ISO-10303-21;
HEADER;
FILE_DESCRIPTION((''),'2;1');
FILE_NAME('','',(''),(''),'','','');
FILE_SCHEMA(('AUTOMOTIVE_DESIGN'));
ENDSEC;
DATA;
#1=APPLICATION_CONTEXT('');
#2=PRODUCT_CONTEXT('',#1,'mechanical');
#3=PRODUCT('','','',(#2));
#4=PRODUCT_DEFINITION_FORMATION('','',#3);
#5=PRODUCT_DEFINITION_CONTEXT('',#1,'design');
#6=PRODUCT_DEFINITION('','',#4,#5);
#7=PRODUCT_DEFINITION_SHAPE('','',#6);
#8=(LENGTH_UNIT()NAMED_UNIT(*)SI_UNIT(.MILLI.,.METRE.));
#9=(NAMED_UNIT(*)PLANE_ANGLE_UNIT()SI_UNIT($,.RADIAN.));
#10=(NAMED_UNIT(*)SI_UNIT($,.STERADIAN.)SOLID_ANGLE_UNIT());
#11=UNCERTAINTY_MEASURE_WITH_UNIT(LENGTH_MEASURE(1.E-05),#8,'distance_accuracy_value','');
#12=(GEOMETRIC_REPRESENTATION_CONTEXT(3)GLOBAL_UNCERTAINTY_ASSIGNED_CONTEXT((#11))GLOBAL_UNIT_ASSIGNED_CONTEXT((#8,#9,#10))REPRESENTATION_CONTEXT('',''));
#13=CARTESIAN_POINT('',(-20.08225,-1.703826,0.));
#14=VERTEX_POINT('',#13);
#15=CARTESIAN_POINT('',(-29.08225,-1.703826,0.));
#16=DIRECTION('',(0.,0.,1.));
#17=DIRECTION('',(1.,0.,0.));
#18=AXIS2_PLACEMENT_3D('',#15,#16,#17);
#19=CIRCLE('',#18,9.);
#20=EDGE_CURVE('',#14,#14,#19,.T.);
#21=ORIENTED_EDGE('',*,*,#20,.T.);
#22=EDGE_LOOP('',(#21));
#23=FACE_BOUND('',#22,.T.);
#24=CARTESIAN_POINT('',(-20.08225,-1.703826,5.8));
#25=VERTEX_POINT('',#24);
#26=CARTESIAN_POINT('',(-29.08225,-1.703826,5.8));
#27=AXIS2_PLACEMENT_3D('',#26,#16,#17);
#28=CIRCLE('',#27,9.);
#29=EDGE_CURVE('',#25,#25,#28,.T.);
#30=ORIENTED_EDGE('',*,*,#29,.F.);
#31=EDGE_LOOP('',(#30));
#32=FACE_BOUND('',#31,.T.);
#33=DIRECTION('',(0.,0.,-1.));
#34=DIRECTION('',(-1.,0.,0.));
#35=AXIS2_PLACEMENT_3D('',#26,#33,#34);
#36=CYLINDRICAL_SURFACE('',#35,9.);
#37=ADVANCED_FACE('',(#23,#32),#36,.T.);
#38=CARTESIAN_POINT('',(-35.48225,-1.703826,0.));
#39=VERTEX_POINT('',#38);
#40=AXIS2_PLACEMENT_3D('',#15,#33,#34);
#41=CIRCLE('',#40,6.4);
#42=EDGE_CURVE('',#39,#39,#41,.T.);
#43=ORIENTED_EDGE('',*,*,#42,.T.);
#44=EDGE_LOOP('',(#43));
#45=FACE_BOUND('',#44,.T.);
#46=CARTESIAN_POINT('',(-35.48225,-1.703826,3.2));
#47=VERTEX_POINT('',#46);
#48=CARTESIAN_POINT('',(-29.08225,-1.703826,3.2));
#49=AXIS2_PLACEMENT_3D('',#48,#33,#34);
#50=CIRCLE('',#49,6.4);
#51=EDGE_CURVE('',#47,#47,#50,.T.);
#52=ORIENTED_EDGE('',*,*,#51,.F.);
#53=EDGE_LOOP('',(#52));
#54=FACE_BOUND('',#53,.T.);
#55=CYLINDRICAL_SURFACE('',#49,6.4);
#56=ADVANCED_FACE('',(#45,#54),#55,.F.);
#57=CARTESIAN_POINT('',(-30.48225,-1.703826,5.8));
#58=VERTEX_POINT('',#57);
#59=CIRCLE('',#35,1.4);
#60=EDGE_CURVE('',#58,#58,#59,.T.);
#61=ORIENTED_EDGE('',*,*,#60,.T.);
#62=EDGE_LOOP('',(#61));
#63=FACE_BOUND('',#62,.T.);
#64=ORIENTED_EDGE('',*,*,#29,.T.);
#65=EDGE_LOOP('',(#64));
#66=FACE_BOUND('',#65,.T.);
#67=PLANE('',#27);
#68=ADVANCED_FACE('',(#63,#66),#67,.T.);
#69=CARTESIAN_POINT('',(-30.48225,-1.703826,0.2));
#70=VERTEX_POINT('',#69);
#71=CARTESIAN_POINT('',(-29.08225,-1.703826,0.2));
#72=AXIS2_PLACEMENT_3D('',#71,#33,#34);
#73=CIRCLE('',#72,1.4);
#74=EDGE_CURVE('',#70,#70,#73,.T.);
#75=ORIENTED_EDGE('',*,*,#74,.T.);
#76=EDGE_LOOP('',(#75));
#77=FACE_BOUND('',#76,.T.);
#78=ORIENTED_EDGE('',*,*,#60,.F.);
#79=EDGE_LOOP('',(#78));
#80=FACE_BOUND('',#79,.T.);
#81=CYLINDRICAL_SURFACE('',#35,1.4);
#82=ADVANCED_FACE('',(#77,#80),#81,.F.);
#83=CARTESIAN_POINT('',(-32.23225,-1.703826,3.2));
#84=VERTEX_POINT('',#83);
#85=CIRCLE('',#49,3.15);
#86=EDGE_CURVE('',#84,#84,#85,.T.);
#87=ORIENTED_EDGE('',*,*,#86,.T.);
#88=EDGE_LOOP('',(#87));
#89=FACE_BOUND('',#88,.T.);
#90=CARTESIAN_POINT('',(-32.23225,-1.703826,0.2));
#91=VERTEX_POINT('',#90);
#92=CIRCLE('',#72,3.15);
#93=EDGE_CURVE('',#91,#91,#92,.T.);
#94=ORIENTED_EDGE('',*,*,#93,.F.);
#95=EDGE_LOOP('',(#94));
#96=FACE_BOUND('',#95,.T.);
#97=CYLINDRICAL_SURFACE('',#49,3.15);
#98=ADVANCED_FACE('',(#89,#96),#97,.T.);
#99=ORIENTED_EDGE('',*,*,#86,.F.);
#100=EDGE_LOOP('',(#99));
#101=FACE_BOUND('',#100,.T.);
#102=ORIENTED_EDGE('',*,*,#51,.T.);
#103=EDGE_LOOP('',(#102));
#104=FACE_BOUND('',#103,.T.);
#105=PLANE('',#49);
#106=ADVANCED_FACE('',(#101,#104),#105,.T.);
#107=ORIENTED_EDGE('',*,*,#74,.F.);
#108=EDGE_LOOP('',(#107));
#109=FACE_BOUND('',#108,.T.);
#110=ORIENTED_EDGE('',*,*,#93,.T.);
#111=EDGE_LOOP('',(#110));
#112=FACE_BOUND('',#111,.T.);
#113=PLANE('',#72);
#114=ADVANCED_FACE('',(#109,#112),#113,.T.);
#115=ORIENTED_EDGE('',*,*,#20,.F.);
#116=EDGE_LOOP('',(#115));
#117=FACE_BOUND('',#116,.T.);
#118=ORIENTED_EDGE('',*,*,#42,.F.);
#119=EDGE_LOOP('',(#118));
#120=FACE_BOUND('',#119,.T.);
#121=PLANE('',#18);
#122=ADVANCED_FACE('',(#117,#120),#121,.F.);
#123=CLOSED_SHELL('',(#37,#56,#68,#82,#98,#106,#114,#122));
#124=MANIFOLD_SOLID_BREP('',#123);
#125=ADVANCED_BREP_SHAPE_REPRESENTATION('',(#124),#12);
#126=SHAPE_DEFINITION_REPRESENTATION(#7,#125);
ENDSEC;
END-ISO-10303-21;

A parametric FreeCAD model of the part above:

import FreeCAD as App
import Part
import Sketcher
from FreeCAD import Vector
Q = App.Units.Quantity

doc = App.newDocument("Part")
body = doc.addObject("PartDesign::Body", "Body")

# Sketch on XY plane
sketch1 = body.newObject("Sketcher::SketchObject", "Sketch")
sketch1.AttachmentSupport = (doc.getObject("XY_Plane"), [""])
sketch1.MapMode = "FlatFace"
sketch1.addGeometry(Part.Circle(Vector(-29, -2, 0), Vector(0, 0, 1), 9), False)
sketch1.addConstraint([
    Sketcher.Constraint("Diameter", 0, Q("18 mm")),
    Sketcher.Constraint("DistanceX", 0, 3, -1, 1, Q("29.08225 mm")),
    Sketcher.Constraint("DistanceY", 0, 3, -1, 1, Q("1.703826 mm")),
])
pad1 = body.newObject("PartDesign::Pad", "Pad")
pad1.Profile = sketch1
pad1.Length = 5.8

# Sketch on XY plane
sketch2 = body.newObject("Sketcher::SketchObject", "Sketch001")
sketch2.AttachmentSupport = (doc.getObject("XY_Plane"), [""])
sketch2.MapMode = "FlatFace"
sketch2.addGeometry(Part.Circle(Vector(-29, -2, 0), Vector(0, 0, 1), 6), False)
sketch2.addConstraint([
    Sketcher.Constraint("Diameter", 0, Q("12.8 mm")),
    Sketcher.Constraint("DistanceX", 0, 3, -1, 1, Q("29.08225 mm")),
    Sketcher.Constraint("DistanceY", 0, 3, -1, 1, Q("1.703826 mm")),
])
pocket1 = body.newObject("PartDesign::Pocket", "Pocket")
pocket1.Profile = sketch2
pocket1.Length = 3.2
pocket1.Reversed = True

# Sketch on XY plane
sketch3 = body.newObject("Sketcher::SketchObject", "Sketch002")
sketch3.AttachmentSupport = (doc.getObject("XY_Plane"), [""])
sketch3.MapMode = "FlatFace"
sketch3.AttachmentOffset = App.Placement(Vector(0, 0, 3.2), App.Rotation())
sketch3.addGeometry(Part.Circle(Vector(-29.1, -1.7, 0), Vector(0, 0, 1), 1), False)
sketch3.addConstraint([
    Sketcher.Constraint("Diameter", 0, Q("2 mm")),
    Sketcher.Constraint("DistanceX", 0, 3, -1, 1, Q("29.08225 mm")),
    Sketcher.Constraint("DistanceY", 0, 3, -1, 1, Q("1.703826 mm")),
])
pad2 = body.newObject("PartDesign::Pad", "Pad001")
pad2.Profile = sketch3
pad2.Length = 3
pad2.Reversed = True

# Sketch on XY plane
sketch4 = body.newObject("Sketcher::SketchObject", "Sketch003")
sketch4.AttachmentSupport = (doc.getObject("XY_Plane"), [""])
sketch4.MapMode = "FlatFace"
sketch4.AttachmentOffset = App.Placement(Vector(0, 0, 0.2), App.Rotation())
sketch4.addGeometry(Part.Circle(Vector(-29.1, -1.7, 0), Vector(0, 0, 1), 3.1), False)
sketch4.addConstraint([
    Sketcher.Constraint("Diameter", 0, Q("6.3 mm")),
    Sketcher.Constraint("DistanceX", 0, 3, -1, 1, Q("29.08225 mm")),
    Sketcher.Constraint("DistanceY", 0, 3, -1, 1, Q("1.703826 mm")),
])
pad3 = body.newObject("PartDesign::Pad", "Pad002")
pad3.Profile = sketch4
pad3.Length = 3

# Sketch on XY plane
sketch5 = body.newObject("Sketcher::SketchObject", "Sketch004")
sketch5.AttachmentSupport = (doc.getObject("XY_Plane"), [""])
sketch5.MapMode = "FlatFace"
sketch5.AttachmentOffset = App.Placement(Vector(0, 0, 0.2), App.Rotation())
sketch5.addGeometry(Part.Circle(Vector(-29.1, -1.7, 0), Vector(0, 0, 1), 1.4), False)
sketch5.addConstraint([
    Sketcher.Constraint("Diameter", 0, Q("2.8 mm")),
    Sketcher.Constraint("DistanceX", 0, 3, -1, 1, Q("29.08225 mm")),
    Sketcher.Constraint("DistanceY", 0, 3, -1, 1, Q("1.703826 mm")),
])
pocket2 = body.newObject("PartDesign::Pocket", "Pocket001")
pocket2.Profile = sketch5
pocket2.Type = "ThroughAll"
pocket2.Reversed = True

doc.recompute()
